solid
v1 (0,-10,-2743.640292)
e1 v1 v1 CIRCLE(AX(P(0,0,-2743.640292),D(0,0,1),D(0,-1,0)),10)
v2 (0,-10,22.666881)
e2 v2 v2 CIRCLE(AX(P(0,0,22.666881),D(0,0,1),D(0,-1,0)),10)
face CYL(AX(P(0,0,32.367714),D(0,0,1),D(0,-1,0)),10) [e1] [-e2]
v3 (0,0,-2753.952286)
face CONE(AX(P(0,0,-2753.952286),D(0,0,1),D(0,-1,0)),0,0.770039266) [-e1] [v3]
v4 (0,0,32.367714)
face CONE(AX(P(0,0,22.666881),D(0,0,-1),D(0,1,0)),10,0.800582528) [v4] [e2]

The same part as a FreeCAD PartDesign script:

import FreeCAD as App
import Part
import Sketcher
from FreeCAD import Vector
Q = App.Units.Quantity

doc = App.newDocument("Part")
body = doc.addObject("PartDesign::Body", "Body")

# Sketch on YZ plane
sketch1 = body.newObject("Sketcher::SketchObject", "Sketch")
sketch1.AttachmentSupport = (doc.getObject("YZ_Plane"), [""])
sketch1.MapMode = "FlatFace"
sketch1.addGeometry(Part.LineSegment(Vector(10, 22.666881, 0), Vector(0, 32.367714, 0)), False)
sketch1.addGeometry(Part.LineSegment(Vector(0, 32.367714, 0), Vector(0, -2753.952286, 0)), False)
sketch1.addGeometry(Part.LineSegment(Vector(0, -2753.952286, 0), Vector(10, -2743.640292, 0)), False)
sketch1.addGeometry(Part.LineSegment(Vector(10, -2743.640292, 0), Vector(10, 22.666881, 0)), False)
sketch1.addConstraint(Sketcher.Constraint("Coincident", 0, 2, 1, 1))
sketch1.addConstraint(Sketcher.Constraint("Coincident", 1, 2, 2, 1))
sketch1.addConstraint(Sketcher.Constraint("Coincident", 2, 2, 3, 1))
sketch1.addConstraint(Sketcher.Constraint("Coincident", 3, 2, 0, 1))
sketch1.addConstraint(Sketcher.Constraint("Vertical", 1))
sketch1.addConstraint(Sketcher.Constraint("Vertical", 3))
sketch1.addConstraint(Sketcher.Constraint("PointOnObject", 0, 2, -2))
sketch1.addConstraint(Sketcher.Constraint("DistanceX", -1, 1, 2, 2, Q("10 mm")))
sketch1.addConstraint(Sketcher.Constraint("DistanceY", 1, 2, 1, 1, Q("2786.32 mm")))
sketch1.addConstraint(Sketcher.Constraint("Angle", 0, Q("135.87 deg")))
sketch1.addConstraint(Sketcher.Constraint("Angle", 2, Q("45.88 deg")))
sketch1.addConstraint(Sketcher.Constraint("DistanceY", -1, 1, 3, 2, Q("22.666881 mm")))
revolution = body.newObject("PartDesign::Revolution", "Revolution")
revolution.Profile = sketch1
revolution.ReferenceAxis = (sketch1, ["V_Axis"])
revolution.Angle = 360

doc.recompute()
